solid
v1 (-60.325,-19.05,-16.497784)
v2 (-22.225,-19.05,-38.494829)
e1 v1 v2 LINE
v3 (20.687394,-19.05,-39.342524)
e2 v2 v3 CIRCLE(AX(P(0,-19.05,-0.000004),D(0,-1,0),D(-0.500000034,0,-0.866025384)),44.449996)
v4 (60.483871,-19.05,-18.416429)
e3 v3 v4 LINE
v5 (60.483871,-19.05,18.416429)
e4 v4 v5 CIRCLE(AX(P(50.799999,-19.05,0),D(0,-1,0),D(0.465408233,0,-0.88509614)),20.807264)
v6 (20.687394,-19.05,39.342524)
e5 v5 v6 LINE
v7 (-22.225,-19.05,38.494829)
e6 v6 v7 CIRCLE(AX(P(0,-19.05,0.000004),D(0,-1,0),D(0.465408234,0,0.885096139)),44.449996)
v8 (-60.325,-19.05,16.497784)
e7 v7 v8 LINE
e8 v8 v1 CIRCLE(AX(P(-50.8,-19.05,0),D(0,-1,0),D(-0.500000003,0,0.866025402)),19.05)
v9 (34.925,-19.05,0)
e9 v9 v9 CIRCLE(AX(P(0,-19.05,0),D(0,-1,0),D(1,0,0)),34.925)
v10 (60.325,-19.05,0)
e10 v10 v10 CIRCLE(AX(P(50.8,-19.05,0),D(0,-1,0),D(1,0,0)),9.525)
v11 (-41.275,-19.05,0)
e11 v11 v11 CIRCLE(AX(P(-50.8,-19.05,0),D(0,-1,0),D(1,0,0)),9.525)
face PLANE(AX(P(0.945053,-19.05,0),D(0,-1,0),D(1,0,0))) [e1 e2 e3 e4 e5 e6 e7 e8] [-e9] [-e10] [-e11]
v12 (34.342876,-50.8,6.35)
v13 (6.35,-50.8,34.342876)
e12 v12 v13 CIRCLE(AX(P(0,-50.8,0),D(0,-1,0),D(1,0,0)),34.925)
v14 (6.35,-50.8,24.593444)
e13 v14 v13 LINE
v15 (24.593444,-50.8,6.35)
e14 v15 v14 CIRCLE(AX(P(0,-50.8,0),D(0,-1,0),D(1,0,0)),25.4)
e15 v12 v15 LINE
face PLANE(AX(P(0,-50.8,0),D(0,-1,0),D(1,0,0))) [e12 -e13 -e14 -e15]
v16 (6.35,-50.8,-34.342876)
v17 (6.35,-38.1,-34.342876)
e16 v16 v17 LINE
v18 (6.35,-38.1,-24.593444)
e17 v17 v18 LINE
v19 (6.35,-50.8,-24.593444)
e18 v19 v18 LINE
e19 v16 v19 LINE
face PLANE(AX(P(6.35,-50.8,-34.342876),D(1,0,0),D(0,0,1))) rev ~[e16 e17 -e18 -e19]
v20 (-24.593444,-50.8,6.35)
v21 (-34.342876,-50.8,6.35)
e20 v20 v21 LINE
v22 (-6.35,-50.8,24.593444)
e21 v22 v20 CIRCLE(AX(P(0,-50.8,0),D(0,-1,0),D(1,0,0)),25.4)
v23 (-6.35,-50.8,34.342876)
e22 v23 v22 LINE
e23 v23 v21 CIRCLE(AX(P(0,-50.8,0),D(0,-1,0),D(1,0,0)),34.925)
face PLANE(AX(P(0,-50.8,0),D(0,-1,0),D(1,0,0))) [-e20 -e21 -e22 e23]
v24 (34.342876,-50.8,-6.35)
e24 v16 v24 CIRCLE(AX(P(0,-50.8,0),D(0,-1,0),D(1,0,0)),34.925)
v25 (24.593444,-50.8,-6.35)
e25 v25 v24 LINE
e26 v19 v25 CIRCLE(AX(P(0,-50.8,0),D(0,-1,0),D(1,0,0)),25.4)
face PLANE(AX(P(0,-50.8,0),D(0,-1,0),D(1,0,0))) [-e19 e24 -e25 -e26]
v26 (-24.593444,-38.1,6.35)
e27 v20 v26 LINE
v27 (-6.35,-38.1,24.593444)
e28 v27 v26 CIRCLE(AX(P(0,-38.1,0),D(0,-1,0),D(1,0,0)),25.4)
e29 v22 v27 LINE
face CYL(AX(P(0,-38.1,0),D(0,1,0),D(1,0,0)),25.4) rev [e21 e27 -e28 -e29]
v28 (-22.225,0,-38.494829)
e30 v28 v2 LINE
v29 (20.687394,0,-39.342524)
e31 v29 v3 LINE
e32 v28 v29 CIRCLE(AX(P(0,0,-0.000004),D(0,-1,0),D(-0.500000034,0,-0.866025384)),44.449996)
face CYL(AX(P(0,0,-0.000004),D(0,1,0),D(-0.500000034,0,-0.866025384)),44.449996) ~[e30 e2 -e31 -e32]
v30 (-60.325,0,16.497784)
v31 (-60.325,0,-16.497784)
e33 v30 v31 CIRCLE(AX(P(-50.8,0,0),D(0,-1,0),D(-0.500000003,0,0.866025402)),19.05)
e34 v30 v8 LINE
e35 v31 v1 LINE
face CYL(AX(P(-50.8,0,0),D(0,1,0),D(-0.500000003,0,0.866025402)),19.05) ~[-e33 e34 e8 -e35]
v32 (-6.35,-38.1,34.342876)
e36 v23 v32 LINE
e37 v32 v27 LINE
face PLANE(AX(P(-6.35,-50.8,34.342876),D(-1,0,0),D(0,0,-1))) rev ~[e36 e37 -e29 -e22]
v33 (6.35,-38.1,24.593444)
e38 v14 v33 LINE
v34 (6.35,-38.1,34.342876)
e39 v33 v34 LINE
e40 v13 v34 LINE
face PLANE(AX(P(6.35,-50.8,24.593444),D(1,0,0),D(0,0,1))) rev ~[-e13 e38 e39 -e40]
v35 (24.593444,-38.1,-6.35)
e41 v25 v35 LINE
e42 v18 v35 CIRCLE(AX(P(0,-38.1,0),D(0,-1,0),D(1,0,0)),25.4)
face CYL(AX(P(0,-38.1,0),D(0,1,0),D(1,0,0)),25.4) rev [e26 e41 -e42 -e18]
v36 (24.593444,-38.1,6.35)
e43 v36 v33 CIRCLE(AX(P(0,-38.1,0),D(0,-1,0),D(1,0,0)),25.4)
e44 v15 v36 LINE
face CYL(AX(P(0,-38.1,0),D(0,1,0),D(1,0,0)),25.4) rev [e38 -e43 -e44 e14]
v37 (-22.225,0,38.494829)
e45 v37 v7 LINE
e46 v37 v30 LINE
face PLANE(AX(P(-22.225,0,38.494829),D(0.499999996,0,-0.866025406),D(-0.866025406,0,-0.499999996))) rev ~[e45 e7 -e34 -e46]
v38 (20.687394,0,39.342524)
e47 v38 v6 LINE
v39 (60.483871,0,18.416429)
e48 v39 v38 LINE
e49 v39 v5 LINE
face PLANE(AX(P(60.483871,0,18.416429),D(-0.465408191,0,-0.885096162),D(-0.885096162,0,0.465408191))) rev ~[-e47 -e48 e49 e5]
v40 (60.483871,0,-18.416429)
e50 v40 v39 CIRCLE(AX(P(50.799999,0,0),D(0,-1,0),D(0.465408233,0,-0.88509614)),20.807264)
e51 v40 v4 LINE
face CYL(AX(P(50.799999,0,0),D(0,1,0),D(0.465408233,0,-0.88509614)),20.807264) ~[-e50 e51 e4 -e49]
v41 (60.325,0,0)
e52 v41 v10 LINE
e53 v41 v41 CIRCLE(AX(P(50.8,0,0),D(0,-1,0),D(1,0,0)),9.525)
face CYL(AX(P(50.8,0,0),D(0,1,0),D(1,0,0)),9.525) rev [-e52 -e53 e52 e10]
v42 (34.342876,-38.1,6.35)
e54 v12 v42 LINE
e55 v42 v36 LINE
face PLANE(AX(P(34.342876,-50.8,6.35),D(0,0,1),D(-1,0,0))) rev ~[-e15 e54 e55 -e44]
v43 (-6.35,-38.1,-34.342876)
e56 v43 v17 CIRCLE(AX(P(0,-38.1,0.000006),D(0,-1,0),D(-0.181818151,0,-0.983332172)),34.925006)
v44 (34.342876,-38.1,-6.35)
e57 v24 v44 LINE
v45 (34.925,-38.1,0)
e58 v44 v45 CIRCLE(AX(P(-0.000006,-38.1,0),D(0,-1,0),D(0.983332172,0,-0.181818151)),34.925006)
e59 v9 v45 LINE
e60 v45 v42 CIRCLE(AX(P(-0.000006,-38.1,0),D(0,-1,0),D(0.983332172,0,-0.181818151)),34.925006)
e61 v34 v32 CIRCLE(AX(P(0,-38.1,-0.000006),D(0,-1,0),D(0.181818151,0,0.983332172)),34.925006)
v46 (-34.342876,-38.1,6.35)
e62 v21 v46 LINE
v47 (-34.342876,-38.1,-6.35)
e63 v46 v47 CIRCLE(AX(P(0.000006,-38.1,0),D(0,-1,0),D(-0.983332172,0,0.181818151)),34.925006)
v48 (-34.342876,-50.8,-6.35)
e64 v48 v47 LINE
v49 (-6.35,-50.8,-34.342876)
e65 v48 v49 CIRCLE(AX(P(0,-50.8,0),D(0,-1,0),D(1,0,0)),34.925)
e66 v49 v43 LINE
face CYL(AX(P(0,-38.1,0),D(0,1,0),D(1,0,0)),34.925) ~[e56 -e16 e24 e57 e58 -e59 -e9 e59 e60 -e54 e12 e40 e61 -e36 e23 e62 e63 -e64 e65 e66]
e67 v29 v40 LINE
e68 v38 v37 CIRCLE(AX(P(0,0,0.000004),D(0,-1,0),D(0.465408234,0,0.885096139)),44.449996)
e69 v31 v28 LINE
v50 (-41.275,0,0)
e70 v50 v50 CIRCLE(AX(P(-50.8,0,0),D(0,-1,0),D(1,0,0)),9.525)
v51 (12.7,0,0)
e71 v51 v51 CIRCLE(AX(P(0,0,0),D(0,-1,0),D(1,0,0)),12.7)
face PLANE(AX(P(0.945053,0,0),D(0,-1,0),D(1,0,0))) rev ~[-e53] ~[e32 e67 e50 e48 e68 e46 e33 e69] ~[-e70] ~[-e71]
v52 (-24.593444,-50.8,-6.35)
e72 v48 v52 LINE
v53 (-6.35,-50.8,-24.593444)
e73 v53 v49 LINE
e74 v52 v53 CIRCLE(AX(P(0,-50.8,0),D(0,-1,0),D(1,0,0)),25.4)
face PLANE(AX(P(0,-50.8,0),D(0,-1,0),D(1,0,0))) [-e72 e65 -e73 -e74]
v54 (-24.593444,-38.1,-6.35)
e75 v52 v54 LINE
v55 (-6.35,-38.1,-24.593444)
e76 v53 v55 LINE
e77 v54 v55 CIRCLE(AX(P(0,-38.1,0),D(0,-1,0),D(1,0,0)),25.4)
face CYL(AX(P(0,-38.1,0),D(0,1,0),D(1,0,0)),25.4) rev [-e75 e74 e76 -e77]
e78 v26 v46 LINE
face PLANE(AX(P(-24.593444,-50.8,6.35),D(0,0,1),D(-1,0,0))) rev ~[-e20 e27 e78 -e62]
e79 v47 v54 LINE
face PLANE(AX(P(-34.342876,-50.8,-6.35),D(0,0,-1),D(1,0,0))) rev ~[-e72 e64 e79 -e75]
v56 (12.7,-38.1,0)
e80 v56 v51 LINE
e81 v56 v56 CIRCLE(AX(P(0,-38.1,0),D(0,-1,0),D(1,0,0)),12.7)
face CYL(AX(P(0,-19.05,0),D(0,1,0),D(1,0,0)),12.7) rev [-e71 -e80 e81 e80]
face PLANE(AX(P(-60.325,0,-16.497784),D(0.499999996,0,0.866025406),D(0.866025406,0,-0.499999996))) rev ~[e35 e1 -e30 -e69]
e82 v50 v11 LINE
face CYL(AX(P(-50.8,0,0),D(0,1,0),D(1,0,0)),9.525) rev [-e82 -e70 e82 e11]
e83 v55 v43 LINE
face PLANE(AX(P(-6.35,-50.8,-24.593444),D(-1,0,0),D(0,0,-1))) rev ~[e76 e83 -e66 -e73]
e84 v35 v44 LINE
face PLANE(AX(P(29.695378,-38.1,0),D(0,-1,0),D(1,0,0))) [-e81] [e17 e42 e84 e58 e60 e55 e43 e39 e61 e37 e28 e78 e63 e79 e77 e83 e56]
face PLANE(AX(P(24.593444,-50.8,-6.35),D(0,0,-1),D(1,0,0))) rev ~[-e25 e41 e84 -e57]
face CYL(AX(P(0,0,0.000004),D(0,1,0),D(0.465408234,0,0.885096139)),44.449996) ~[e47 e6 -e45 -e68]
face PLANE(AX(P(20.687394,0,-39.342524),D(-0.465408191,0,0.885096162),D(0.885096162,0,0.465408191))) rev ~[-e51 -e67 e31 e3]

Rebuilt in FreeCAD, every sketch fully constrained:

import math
import FreeCAD as App
import Part
import Sketcher
from FreeCAD import Vector
Q = App.Units.Quantity

doc = App.newDocument("Part")
params = doc.addObject("Spreadsheet::Sheet", "Params")
for row, (alias, value) in enumerate([
    ("sketch1_diameter", "1 in"),
    ("sketch1_diameter2", "0.75 in"),
    ("sketch1_radius", "1.7499999 in"),
    ("sketch1_radius2", "0.75 in"),
    ("pad1_length", "0.75 in"),
    ("sketch2_diameter", "1 in"),
    ("sketch2_diameter2", "2.75 in"),
    ("pad2_length", "0.75 in"),
    ("sketch3_diameter", "2 in"),
    ("sketch3_diameter2", "2.75 in"),
    ("pad3_length", "0.5 in"),
    ("pocket1_length", "0.5 in"),
], start=1):
    params.set(f"A{row}", alias)
    params.set(f"B{row}", "=" + value)
    params.setAlias(f"B{row}", alias)

body = doc.addObject("PartDesign::Body", "Body")

sketch1 = body.newObject("Sketcher::SketchObject", "Sketch")
sketch1.AttachmentSupport = (doc.getObject("XZ_Plane"), [""])
sketch1.MapMode = "FlatFace"
sketch1.addGeometry([
    Part.LineSegment(Vector(-60, -16, 0), Vector(-22, -38, 0)),
    Part.ArcOfCircle(Part.Circle(Vector(0, 0, 0), Vector(0, 0, 1), 44), math.radians(-120), math.radians(-62)),
    Part.LineSegment(Vector(21, -39, 0), Vector(60, -18, 0)),
    Part.ArcOfCircle(Part.Circle(Vector(51, 0, 0), Vector(0, 0, 1), 21), math.radians(-62), math.radians(62)),
    Part.LineSegment(Vector(60, 18, 0), Vector(21, 39, 0)),
    Part.ArcOfCircle(Part.Circle(Vector(0, 0, 0), Vector(0, 0, 1), 44), math.radians(62), math.radians(120)),
    Part.LineSegment(Vector(-22, 38, 0), Vector(-60, 16, 0)),
    Part.ArcOfCircle(Part.Circle(Vector(-51, 0, 0), Vector(0, 0, 1), 19), math.radians(120), math.radians(240)),
    Part.Circle(Vector(-51, 0, 0), Vector(0, 0, 1), 10),
    Part.Circle(Vector(0, 0, 0), Vector(0, 0, 1), 13),
    Part.Circle(Vector(51, 0, 0), Vector(0, 0, 1), 10),
], False)
sketch1.addConstraint([
    Sketcher.Constraint("Tangent", 0, 2, 1, 1),
    Sketcher.Constraint("Tangent", 1, 2, 2, 1),
    Sketcher.Constraint("Tangent", 2, 2, 3, 1),
    Sketcher.Constraint("Tangent", 3, 2, 4, 1),
    Sketcher.Constraint("Tangent", 4, 2, 5, 1),
    Sketcher.Constraint("Tangent", 5, 2, 6, 1),
    Sketcher.Constraint("Tangent", 6, 2, 7, 1),
    Sketcher.Constraint("Tangent", 7, 2, 0, 1),
    Sketcher.Constraint("Coincident", 1, 3, -1, 1),
    Sketcher.Constraint("Coincident", 5, 3, -1, 1),
    Sketcher.Constraint("Coincident", 9, 3, -1, 1),
    Sketcher.Constraint("Coincident", 8, 3, 7, 3),
    Sketcher.Constraint("Coincident", 10, 3, 3, 3),
    Sketcher.Constraint("Equal", 1, 5),
    Sketcher.Constraint("Equal", 8, 10),
    Sketcher.Constraint("Symmetric", 3, 3, 7, 3, -1, 1),
    Sketcher.Constraint("PointOnObject", 3, 3, -1),
    Sketcher.Constraint("Diameter", 9, Q("1 in")),
    Sketcher.Constraint("Diameter", 8, Q("0.75 in")),
    Sketcher.Constraint("Radius", 1, Q("1.7499999 in")),
    Sketcher.Constraint("Radius", 7, Q("0.75 in")),
    Sketcher.Constraint("DistanceX", -1, 1, 3, 3, Q("2 in")),
    Sketcher.Constraint("Radius", 3, Q("20.807264 mm")),
])
sketch1.setExpression("Constraints[17]", "Params.sketch1_diameter")
sketch1.setExpression("Constraints[18]", "Params.sketch1_diameter2")
sketch1.setExpression("Constraints[19]", "Params.sketch1_radius")
sketch1.setExpression("Constraints[20]", "Params.sketch1_radius2")
pad1 = body.newObject("PartDesign::Pad", "Pad")
pad1.Profile = sketch1
pad1.setExpression("Length", "Params.pad1_length")

sketch2 = body.newObject("Sketcher::SketchObject", "Sketch001")
sketch2.AttachmentSupport = (doc.getObject("XZ_Plane"), [""])
sketch2.MapMode = "FlatFace"
sketch2.AttachmentOffset = App.Placement(Vector(0, 0, 0.75 * 25.4), App.Rotation())
sketch2.addGeometry([
    Part.Circle(Vector(0, 0, 0), Vector(0, 0, 1), 35),
    Part.Circle(Vector(0, 0, 0), Vector(0, 0, 1), 13),
], False)
sketch2.addConstraint([
    Sketcher.Constraint("Coincident", 0, 3, -1, 1),
    Sketcher.Constraint("Coincident", 1, 3, -1, 1),
    Sketcher.Constraint("Diameter", 1, Q("1 in")),
    Sketcher.Constraint("Diameter", 0, Q("2.75 in")),
])
sketch2.setExpression("Constraints[2]", "Params.sketch2_diameter")
sketch2.setExpression("Constraints[3]", "Params.sketch2_diameter2")
pad2 = body.newObject("PartDesign::Pad", "Pad001")
pad2.Profile = sketch2
pad2.setExpression("Length", "Params.pad2_length")

sketch3 = body.newObject("Sketcher::SketchObject", "Sketch002")
sketch3.AttachmentSupport = (doc.getObject("XZ_Plane"), [""])
sketch3.MapMode = "FlatFace"
sketch3.AttachmentOffset = App.Placement(Vector(0, 0, 1.5 * 25.4), App.Rotation())
sketch3.addGeometry([
    Part.Circle(Vector(0, 0, 0), Vector(0, 0, 1), 35),
    Part.Circle(Vector(0, 0, 0), Vector(0, 0, 1), 25),
], False)
sketch3.addConstraint([
    Sketcher.Constraint("Coincident", 0, 3, -1, 1),
    Sketcher.Constraint("Coincident", 1, 3, -1, 1),
    Sketcher.Constraint("Diameter", 1, Q("2 in")),
    Sketcher.Constraint("Diameter", 0, Q("2.75 in")),
])
sketch3.setExpression("Constraints[2]", "Params.sketch3_diameter")
sketch3.setExpression("Constraints[3]", "Params.sketch3_diameter2")
pad3 = body.newObject("PartDesign::Pad", "Pad002")
pad3.Profile = sketch3
pad3.setExpression("Length", "Params.pad3_length")

sketch4 = body.newObject("Sketcher::SketchObject", "Sketch003")
sketch4.AttachmentSupport = (doc.getObject("XZ_Plane"), [""])
sketch4.MapMode = "FlatFace"
sketch4.AttachmentOffset = App.Placement(Vector(0, 0, 2 * 25.4), App.Rotation())
sketch4.addGeometry([
    Part.LineSegment(Vector(-6, 34, 0), Vector(-6, 25, 0)),
    Part.ArcOfCircle(Part.Circle(Vector(0, 0, 0), Vector(0, 0, 1), 25), math.radians(76), math.radians(104)),
    Part.LineSegment(Vector(6, 25, 0), Vector(6, 34, 0)),
    Part.ArcOfCircle(Part.Circle(Vector(0, 0, 0), Vector(0, 0, 1), 35), math.radians(80), math.radians(100)),
    Part.LineSegment(Vector(34, 6, 0), Vector(25, 6, 0)),
    Part.ArcOfCircle(Part.Circle(Vector(0, 0, 0), Vector(0, 0, 1), 25), math.radians(-14), math.radians(14)),
    Part.LineSegment(Vector(25, -6, 0), Vector(34, -6, 0)),
    Part.ArcOfCircle(Part.Circle(Vector(0, 0, 0), Vector(0, 0, 1), 35), math.radians(-10), math.radians(10)),
    Part.LineSegment(Vector(6, -34, 0), Vector(6, -25, 0)),
    Part.ArcOfCircle(Part.Circle(Vector(0, 0, 0), Vector(0, 0, 1), 25), math.radians(-104), math.radians(-76)),
    Part.LineSegment(Vector(-6, -25, 0), Vector(-6, -34, 0)),
    Part.ArcOfCircle(Part.Circle(Vector(0, 0, 0), Vector(0, 0, 1), 35), math.radians(-100), math.radians(-80)),
    Part.LineSegment(Vector(-34, -6, 0), Vector(-25, -6, 0)),
    Part.ArcOfCircle(Part.Circle(Vector(0, 0, 0), Vector(0, 0, 1), 25), math.radians(166), math.radians(194)),
    Part.LineSegment(Vector(-25, 6, 0), Vector(-34, 6, 0)),
    Part.ArcOfCircle(Part.Circle(Vector(0, 0, 0), Vector(0, 0, 1), 35), math.radians(170), math.radians(190)),
], False)
sketch4.addConstraint([
    Sketcher.Constraint("Coincident", 0, 2, 1, 2),
    Sketcher.Constraint("Coincident", 1, 1, 2, 1),
    Sketcher.Constraint("Coincident", 2, 2, 3, 1),
    Sketcher.Constraint("Coincident", 3, 2, 0, 1),
    Sketcher.Constraint("Coincident", 4, 2, 5, 2),
    Sketcher.Constraint("Coincident", 5, 1, 6, 1),
    Sketcher.Constraint("Coincident", 6, 2, 7, 1),
    Sketcher.Constraint("Coincident", 7, 2, 4, 1),
    Sketcher.Constraint("Coincident", 8, 2, 9, 2),
    Sketcher.Constraint("Coincident", 9, 1, 10, 1),
    Sketcher.Constraint("Coincident", 10, 2, 11, 1),
    Sketcher.Constraint("Coincident", 11, 2, 8, 1),
    Sketcher.Constraint("Coincident", 12, 2, 13, 2),
    Sketcher.Constraint("Coincident", 13, 1, 14, 1),
    Sketcher.Constraint("Coincident", 14, 2, 15, 1),
    Sketcher.Constraint("Coincident", 15, 2, 12, 1),
    Sketcher.Constraint("Vertical", 0),
    Sketcher.Constraint("Vertical", 2),
    Sketcher.Constraint("Horizontal", 4),
    Sketcher.Constraint("Horizontal", 6),
    Sketcher.Constraint("Vertical", 8),
    Sketcher.Constraint("Vertical", 10),
    Sketcher.Constraint("Horizontal", 12),
    Sketcher.Constraint("Horizontal", 14),
    Sketcher.Constraint("Coincident", 1, 3, -1, 1),
    Sketcher.Constraint("Coincident", 3, 3, -1, 1),
    Sketcher.Constraint("Coincident", 5, 3, -1, 1),
    Sketcher.Constraint("Coincident", 7, 3, -1, 1),
    Sketcher.Constraint("Coincident", 9, 3, -1, 1),
    Sketcher.Constraint("Coincident", 11, 3, -1, 1),
    Sketcher.Constraint("Coincident", 13, 3, -1, 1),
    Sketcher.Constraint("Coincident", 15, 3, -1, 1),
    Sketcher.Constraint("Equal", 1, 5),
    Sketcher.Constraint("Equal", 3, 7),
    Sketcher.Constraint("Equal", 5, 9),
    Sketcher.Constraint("Equal", 7, 11),
    Sketcher.Constraint("Equal", 9, 13),
    Sketcher.Constraint("Equal", 11, 15),
    Sketcher.Constraint("Horizontal", 0, 2, 1, 1),
    Sketcher.Constraint("Horizontal", 8, 2, 9, 1),
    Sketcher.Constraint("Horizontal", 6, 2, 12, 2),
    Sketcher.Constraint("Horizontal", 7, 2, 13, 1),
    Sketcher.Constraint("Vertical", 4, 2, 5, 1),
    Sketcher.Constraint("Vertical", 2, 2, 8, 2),
    Sketcher.Constraint("Equal", 14, 0),
    Sketcher.Constraint("DistanceX", 0, 2, 1, 1, Q("0.5 in")),
    Sketcher.Constraint("Radius", 1, Q("25.399992 mm")),
    Sketcher.Constraint("Radius", 3, Q("34.925006 mm")),
])
pocket1 = body.newObject("PartDesign::Pocket", "Pocket")
pocket1.Profile = sketch4
pocket1.setExpression("Length", "Params.pocket1_length")

doc.recompute()
